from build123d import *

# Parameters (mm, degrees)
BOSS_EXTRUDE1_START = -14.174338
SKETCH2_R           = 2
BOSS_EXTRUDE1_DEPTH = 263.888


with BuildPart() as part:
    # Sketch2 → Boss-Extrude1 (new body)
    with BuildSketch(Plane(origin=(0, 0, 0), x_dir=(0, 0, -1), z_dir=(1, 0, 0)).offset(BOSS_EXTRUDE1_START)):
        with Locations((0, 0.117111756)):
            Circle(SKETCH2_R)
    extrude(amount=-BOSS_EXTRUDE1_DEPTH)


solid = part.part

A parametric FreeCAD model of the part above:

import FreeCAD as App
import Part
import Sketcher

V = App.Vector

doc = App.newDocument("Part")
body = doc.addObject("PartDesign::Body", "Body")

sketch1 = doc.addObject("Sketcher::SketchObject", "Sketch")
body.addObject(sketch1)
sketch1.AttachmentSupport = (doc.YZ_Plane, [""])
sketch1.MapMode = "FlatFace"
sketch1.AttachmentOffset = App.Placement(V(0, 0, -14.174338), App.Rotation())
sketch1.addGeometry(Part.Circle(V(0.1, 0, 0), V(0, 0, 1), 2), False)
sketch1.addConstraint([
    Sketcher.Constraint("PointOnObject", 0, 3, -1),
    Sketcher.Constraint("Diameter", 0, 4.0),
    Sketcher.Constraint("DistanceX", -1, 1, 0, 3, 0.117112),
])
pad1 = doc.addObject("PartDesign::Pad", "Pad")
body.addObject(pad1)
pad1.Profile = sketch1
pad1.Length = 263.888
pad1.Reversed = True

doc.recompute()
